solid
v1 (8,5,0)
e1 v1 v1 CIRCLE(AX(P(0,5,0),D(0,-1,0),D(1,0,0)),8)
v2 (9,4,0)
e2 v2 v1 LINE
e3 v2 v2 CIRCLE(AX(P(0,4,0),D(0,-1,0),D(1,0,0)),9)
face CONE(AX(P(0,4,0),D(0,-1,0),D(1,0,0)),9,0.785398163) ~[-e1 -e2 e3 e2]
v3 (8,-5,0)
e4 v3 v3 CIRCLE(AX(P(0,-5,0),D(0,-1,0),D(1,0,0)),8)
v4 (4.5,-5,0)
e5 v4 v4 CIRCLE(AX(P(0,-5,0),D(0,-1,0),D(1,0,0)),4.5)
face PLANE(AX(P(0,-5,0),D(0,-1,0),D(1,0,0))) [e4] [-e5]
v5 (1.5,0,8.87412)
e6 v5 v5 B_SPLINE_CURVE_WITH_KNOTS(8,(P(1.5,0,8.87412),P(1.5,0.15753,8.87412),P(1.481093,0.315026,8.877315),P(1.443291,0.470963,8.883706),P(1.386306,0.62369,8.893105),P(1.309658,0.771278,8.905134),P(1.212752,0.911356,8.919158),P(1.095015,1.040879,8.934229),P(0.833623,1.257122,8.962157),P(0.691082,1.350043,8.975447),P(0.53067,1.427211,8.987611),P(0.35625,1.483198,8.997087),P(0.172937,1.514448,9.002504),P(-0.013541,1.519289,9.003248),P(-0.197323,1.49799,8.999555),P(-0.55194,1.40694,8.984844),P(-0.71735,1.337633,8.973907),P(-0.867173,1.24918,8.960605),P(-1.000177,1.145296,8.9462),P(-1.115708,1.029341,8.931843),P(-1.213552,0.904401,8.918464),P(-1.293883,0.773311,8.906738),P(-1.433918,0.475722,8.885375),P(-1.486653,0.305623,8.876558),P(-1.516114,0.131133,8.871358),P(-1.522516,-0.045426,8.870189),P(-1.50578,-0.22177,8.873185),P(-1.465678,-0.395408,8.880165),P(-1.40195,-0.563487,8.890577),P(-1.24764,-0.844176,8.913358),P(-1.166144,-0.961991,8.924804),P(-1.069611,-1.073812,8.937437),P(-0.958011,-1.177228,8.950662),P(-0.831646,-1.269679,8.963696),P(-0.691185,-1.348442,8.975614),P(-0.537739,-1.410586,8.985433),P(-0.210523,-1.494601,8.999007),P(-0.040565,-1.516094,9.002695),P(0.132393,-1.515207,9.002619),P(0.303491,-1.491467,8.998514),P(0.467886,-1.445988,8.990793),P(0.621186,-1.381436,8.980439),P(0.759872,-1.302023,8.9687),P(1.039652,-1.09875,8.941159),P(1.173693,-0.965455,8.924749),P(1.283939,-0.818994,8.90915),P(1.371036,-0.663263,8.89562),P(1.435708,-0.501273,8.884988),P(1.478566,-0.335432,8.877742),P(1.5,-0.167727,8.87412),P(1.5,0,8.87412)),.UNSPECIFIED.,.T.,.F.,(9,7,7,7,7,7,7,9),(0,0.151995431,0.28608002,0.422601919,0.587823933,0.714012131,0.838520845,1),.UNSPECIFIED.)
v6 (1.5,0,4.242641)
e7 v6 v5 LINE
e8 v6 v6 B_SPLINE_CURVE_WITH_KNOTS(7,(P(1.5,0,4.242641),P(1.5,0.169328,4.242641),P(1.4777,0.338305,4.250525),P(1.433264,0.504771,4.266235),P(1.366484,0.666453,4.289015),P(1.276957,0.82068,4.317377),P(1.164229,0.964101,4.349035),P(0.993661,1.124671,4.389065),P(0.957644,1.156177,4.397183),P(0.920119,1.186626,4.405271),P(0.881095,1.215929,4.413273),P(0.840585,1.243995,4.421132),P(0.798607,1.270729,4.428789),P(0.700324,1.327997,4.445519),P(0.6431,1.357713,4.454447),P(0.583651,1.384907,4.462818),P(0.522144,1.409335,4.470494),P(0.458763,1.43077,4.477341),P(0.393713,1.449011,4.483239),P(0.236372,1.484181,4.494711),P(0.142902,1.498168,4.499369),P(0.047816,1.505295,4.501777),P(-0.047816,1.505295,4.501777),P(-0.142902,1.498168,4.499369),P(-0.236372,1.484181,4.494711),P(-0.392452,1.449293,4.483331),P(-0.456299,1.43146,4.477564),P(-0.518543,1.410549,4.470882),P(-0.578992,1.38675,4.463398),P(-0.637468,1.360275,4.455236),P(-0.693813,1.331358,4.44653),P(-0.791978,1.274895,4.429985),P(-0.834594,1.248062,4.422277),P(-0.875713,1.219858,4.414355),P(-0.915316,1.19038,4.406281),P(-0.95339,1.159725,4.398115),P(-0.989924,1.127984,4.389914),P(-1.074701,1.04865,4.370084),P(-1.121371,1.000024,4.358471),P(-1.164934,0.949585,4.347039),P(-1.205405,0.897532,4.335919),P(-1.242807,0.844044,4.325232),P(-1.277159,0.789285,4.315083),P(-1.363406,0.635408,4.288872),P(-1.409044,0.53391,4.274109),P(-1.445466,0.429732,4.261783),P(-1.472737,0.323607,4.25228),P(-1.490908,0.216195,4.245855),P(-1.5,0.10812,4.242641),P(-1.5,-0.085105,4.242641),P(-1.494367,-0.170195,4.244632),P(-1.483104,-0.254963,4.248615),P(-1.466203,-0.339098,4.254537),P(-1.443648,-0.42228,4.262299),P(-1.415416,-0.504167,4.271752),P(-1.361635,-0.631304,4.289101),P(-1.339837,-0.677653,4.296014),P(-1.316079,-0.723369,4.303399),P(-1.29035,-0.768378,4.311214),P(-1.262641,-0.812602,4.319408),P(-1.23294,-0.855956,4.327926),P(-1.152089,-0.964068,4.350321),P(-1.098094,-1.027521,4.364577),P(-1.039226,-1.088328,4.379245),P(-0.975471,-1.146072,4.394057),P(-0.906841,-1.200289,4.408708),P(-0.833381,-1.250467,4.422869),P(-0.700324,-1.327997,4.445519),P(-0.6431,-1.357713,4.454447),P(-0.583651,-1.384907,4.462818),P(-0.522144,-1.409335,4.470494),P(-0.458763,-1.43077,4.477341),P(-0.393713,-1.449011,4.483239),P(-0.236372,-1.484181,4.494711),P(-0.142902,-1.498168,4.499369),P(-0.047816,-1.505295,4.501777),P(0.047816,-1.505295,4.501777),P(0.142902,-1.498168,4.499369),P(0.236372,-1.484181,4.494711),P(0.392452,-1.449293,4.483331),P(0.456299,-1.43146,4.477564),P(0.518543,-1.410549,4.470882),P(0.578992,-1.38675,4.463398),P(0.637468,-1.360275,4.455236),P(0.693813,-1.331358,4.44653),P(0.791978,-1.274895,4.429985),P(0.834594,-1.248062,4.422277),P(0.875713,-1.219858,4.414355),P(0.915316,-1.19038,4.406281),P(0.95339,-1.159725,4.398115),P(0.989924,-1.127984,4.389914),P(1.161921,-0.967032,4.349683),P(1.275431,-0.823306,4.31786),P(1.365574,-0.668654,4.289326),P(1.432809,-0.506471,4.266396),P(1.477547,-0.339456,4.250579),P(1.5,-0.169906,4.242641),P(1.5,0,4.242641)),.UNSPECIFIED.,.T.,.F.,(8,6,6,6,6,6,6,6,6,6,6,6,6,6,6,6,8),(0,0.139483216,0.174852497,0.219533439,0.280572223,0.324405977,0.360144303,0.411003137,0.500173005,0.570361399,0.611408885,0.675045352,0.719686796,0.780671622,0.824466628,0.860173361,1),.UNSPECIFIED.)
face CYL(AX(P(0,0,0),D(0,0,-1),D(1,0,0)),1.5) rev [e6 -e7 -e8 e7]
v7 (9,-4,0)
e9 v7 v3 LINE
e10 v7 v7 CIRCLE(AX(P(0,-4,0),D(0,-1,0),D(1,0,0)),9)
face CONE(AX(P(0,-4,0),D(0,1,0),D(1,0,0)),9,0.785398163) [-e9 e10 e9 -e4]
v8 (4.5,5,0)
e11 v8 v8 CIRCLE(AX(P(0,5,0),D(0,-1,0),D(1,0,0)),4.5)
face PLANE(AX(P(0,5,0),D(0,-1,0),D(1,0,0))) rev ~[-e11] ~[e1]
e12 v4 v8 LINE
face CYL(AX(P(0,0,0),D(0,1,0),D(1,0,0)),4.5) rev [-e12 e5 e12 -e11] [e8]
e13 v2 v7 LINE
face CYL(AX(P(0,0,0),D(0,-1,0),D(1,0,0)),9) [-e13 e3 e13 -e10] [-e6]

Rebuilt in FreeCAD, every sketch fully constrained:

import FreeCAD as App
import Part
import Sketcher
from FreeCAD import Vector


def edges_at(feature, points):
    """Names of the edges that pass closest to the given points."""
    edges = feature.Shape.Edges
    near = lambda p: min(range(len(edges)), key=lambda i: edges[i].distToShape(Part.Vertex(*p))[0])
    return sorted({f"Edge{near(p) + 1}" for p in points})

doc = App.newDocument("Part")
body = doc.addObject("PartDesign::Body", "Body")

# Sketch on XZ plane
sketch1 = body.newObject("Sketcher::SketchObject", "Sketch")
sketch1.AttachmentSupport = (doc.getObject("XZ_Plane"), [""])
sketch1.MapMode = "FlatFace"
sketch1.addGeometry(Part.Circle(Vector(0, 0, 0), Vector(0, 0, 1), 9), False)
sketch1.addGeometry(Part.Circle(Vector(0, 0, 0), Vector(0, 0, 1), 4.5), False)
sketch1.addConstraint(Sketcher.Constraint("Coincident", 0, 3, -1, 1))
sketch1.addConstraint(Sketcher.Constraint("Coincident", 1, 3, -1, 1))
sketch1.addConstraint(Sketcher.Constraint("Diameter", 0, 18.0))
sketch1.addConstraint(Sketcher.Constraint("Diameter", 1, 9.0))
pad1 = body.newObject("PartDesign::Pad", "Pad")
pad1.Profile = sketch1
pad1.Length = 10
pad1.Midplane = True

# Sketch on XY plane
sketch2 = body.newObject("Sketcher::SketchObject", "Sketch001")
sketch2.AttachmentSupport = (doc.getObject("XY_Plane"), [""])
sketch2.MapMode = "FlatFace"
sketch2.addGeometry(Part.Circle(Vector(0, 0, 0), Vector(0, 0, 1), 1.5), False)
sketch2.addConstraint(Sketcher.Constraint("Coincident", 0, 3, -1, 1))
sketch2.addConstraint(Sketcher.Constraint("Diameter", 0, 3.0))
pocket1 = body.newObject("PartDesign::Pocket", "Pocket")
pocket1.Profile = sketch2
pocket1.Type = "ThroughAll"
pocket1.Reversed = True
doc.recompute()

chamfer = body.newObject("PartDesign::Chamfer", "Chamfer")
chamfer.Base = (pocket1, edges_at(pocket1, [(-9, -5, 0), (-9, 5, 0)]))
chamfer.Size = 1

doc.recompute()
